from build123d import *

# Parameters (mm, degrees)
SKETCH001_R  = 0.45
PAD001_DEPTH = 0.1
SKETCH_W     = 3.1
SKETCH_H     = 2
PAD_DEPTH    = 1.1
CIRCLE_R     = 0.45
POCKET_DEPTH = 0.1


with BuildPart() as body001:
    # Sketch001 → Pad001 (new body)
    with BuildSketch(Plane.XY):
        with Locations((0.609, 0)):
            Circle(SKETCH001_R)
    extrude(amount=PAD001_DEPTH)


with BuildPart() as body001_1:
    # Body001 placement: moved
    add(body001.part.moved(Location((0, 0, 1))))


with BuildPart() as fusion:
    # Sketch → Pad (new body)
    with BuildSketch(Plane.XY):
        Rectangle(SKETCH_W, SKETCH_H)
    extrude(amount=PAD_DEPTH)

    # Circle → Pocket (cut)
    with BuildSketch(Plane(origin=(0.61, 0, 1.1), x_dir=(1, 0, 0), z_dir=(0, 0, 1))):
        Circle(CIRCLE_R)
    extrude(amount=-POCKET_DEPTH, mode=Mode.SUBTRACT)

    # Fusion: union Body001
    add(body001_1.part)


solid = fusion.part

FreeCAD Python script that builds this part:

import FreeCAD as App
import Part
import Sketcher
from FreeCAD import Vector


def add_polygon(sketch, points):
    """Adds a closed chain of lines whose ends are joined by coincident constraints."""
    first, n = sketch.GeometryCount, len(points)
    for a, b in zip(points, points[1:] + points[:1]):
        sketch.addGeometry(Part.LineSegment(App.Vector(*a, 0), App.Vector(*b, 0)), False)
    for i in range(n):
        sketch.addConstraint(Sketcher.Constraint("Coincident", first + i, 2, first + (i + 1) % n, 1))

doc = App.newDocument("Part")
body = doc.addObject("PartDesign::Body", "Body")

# Sketch on XY plane
sketch1 = doc.addObject("Sketcher::SketchObject", "Sketch")
body.addObject(sketch1)
sketch1.AttachmentSupport = (doc.XY_Plane, [""])
sketch1.MapMode = "FlatFace"
sketch1.addGeometry(Part.Circle(Vector(0.609, 0, 0), Vector(0, 0, 1), 0.45), False)
sketch1.addConstraint([
    Sketcher.Constraint("PointOnObject", 0, 3, -1),
    Sketcher.Constraint("Diameter", 0, 0.9),
    Sketcher.Constraint("DistanceX", -1, 1, 0, 3, 0.609),
])
pad1 = doc.addObject("PartDesign::Pad", "Pad")
body.addObject(pad1)
pad1.Profile = sketch1
pad1.Length = 0.1
body2 = doc.addObject("PartDesign::Body", "Body001")
doc.recompute()

body.Placement = App.Placement(Vector(0, 0, 1), App.Rotation(Vector(0, 0, 1), 0))
boolean = doc.addObject("PartDesign::Boolean", "Boolean")
body2.addObject(boolean)
boolean.Type = "Fuse"
boolean.addObjects([body])
body3 = doc.addObject("PartDesign::Body", "Body002")

# Sketch on XY plane
sketch2 = doc.addObject("Sketcher::SketchObject", "Sketch001")
body3.addObject(sketch2)
sketch2.AttachmentSupport = (doc.getObject("XY_Plane002"), [""])
sketch2.MapMode = "FlatFace"
add_polygon(sketch2, [(-1.55, 1), (-1.55, -1), (1.55, -1), (1.55, 1)])  # lines 0-3
sketch2.addConstraint([
    Sketcher.Constraint("Vertical", 0),
    Sketcher.Constraint("Horizontal", 1),
    Sketcher.Constraint("Vertical", 2),
    Sketcher.Constraint("Horizontal", 3),
    Sketcher.Constraint("Symmetric", 0, 2, 2, 2, -1, 1),
    Sketcher.Constraint("DistanceY", 0, 2, 0, 1, 2.0),
    Sketcher.Constraint("DistanceX", 1, 1, 1, 2, 3.1),
])
pad2 = doc.addObject("PartDesign::Pad", "Pad001")
body3.addObject(pad2)
pad2.Profile = sketch2
pad2.Length = 1.1

# Sketch on XY plane
sketch3 = doc.addObject("Sketcher::SketchObject", "Sketch002")
body3.addObject(sketch3)
sketch3.AttachmentSupport = (doc.getObject("XY_Plane002"), [""])
sketch3.MapMode = "FlatFace"
sketch3.AttachmentOffset = App.Placement(Vector(0, 0, 1.1), App.Rotation())
sketch3.addGeometry(Part.Circle(Vector(0.61, 0, 0), Vector(0, 0, 1), 0.45), False)
sketch3.addConstraint([
    Sketcher.Constraint("PointOnObject", 0, 3, -1),
    Sketcher.Constraint("Diameter", 0, 0.9),
    Sketcher.Constraint("DistanceX", -1, 1, 0, 3, 0.61),
])
pocket1 = doc.addObject("PartDesign::Pocket", "Pocket")
body3.addObject(pocket1)
pocket1.Profile = sketch3
pocket1.Length = 0.1
doc.recompute()

boolean2 = doc.addObject("PartDesign::Boolean", "Boolean001")
body3.addObject(boolean2)
boolean2.Type = "Fuse"
boolean2.addObjects([body2])

doc.recompute()
